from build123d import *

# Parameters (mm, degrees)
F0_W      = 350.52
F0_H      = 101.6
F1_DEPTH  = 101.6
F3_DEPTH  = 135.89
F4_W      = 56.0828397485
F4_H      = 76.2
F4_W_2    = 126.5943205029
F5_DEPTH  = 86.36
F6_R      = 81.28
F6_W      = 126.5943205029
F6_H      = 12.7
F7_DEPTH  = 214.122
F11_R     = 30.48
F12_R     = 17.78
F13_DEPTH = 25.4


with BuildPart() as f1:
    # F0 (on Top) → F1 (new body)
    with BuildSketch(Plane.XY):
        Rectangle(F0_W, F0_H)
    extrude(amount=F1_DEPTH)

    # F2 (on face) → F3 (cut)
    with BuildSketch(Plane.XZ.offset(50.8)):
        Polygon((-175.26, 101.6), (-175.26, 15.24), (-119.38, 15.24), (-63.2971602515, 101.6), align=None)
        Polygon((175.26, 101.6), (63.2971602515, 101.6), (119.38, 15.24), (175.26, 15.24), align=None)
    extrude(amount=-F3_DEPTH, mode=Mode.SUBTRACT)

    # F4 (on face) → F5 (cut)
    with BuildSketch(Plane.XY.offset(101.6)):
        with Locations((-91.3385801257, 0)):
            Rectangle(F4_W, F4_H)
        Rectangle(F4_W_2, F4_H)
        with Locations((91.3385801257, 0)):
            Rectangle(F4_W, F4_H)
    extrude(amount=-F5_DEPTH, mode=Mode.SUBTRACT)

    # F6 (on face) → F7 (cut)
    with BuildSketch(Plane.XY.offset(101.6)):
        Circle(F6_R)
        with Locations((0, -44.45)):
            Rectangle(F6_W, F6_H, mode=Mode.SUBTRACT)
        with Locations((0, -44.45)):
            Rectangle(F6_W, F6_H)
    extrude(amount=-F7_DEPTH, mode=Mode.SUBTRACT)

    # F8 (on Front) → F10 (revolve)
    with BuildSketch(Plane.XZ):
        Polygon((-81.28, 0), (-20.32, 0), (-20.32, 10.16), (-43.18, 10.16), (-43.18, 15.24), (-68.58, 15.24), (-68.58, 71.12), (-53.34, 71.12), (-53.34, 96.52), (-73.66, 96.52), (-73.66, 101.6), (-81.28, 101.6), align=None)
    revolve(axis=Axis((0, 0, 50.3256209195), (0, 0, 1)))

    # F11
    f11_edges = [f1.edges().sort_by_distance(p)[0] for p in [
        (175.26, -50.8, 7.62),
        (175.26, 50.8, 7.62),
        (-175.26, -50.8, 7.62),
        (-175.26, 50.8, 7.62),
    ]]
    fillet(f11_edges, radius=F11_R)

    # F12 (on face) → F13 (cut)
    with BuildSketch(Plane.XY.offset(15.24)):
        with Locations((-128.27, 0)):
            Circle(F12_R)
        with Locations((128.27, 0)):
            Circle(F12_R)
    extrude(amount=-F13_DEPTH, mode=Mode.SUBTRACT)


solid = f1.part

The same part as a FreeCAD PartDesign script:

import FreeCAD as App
import Part
import Sketcher
from FreeCAD import Vector
Q = App.Units.Quantity


def edges_at(feature, points):
    """Names of the edges that pass closest to the given points."""
    edges = feature.Shape.Edges
    near = lambda p: min(range(len(edges)), key=lambda i: edges[i].distToShape(Part.Vertex(*p))[0])
    return sorted({f"Edge{near(p) + 1}" for p in points})

doc = App.newDocument("Part")
body = doc.addObject("PartDesign::Body", "Body")
body.AllowCompound = True

sketch1 = body.newObject("Sketcher::SketchObject", "Sketch")
sketch1.AttachmentSupport = (doc.getObject("XY_Plane"), [""])
sketch1.MapMode = "FlatFace"
sketch1.addGeometry(Part.LineSegment(Vector(-175.26, 50.8, 0), Vector(-175.26, -50.8, 0)), False)
sketch1.addGeometry(Part.LineSegment(Vector(-175.26, -50.8, 0), Vector(175.26, -50.8, 0)), False)
sketch1.addGeometry(Part.LineSegment(Vector(175.26, -50.8, 0), Vector(175.26, 50.8, 0)), False)
sketch1.addGeometry(Part.LineSegment(Vector(175.26, 50.8, 0), Vector(-175.26, 50.8, 0)), False)
sketch1.addConstraint(Sketcher.Constraint("Coincident", 0, 2, 1, 1))
sketch1.addConstraint(Sketcher.Constraint("Coincident", 1, 2, 2, 1))
sketch1.addConstraint(Sketcher.Constraint("Coincident", 2, 2, 3, 1))
sketch1.addConstraint(Sketcher.Constraint("Coincident", 3, 2, 0, 1))
sketch1.addConstraint(Sketcher.Constraint("Vertical", 0))
sketch1.addConstraint(Sketcher.Constraint("Horizontal", 1))
sketch1.addConstraint(Sketcher.Constraint("Vertical", 2))
sketch1.addConstraint(Sketcher.Constraint("Horizontal", 3))
sketch1.addConstraint(Sketcher.Constraint("Symmetric", 0, 2, 2, 2, -1, 1))
sketch1.addConstraint(Sketcher.Constraint("DistanceY", 0, 2, 0, 1, Q("4 in")))
sketch1.addConstraint(Sketcher.Constraint("DistanceX", 1, 1, 1, 2, Q("13.8 in")))
pad1 = body.newObject("PartDesign::Pad", "Pad")
pad1.Profile = sketch1
pad1.Length = Q("4 in")

sketch2 = body.newObject("Sketcher::SketchObject", "Sketch001")
sketch2.AttachmentSupport = (doc.getObject("XZ_Plane"), [""])
sketch2.MapMode = "FlatFace"
sketch2.AttachmentOffset = App.Placement(Vector(0, 0, 2 * 25.4), App.Rotation())
sketch2.addGeometry(Part.LineSegment(Vector(-175.26, 101.6, 0), Vector(-175.26, 15.24, 0)), False)
sketch2.addGeometry(Part.LineSegment(Vector(-175.26, 15.24, 0), Vector(-119.38, 15.24, 0)), False)
sketch2.addGeometry(Part.LineSegment(Vector(-119.38, 15.24, 0), Vector(-63.29716, 101.6, 0)), False)
sketch2.addGeometry(Part.LineSegment(Vector(-63.29716, 101.6, 0), Vector(-175.26, 101.6, 0)), False)
sketch2.addGeometry(Part.LineSegment(Vector(175.26, 101.6, 0), Vector(63.29716, 101.6, 0)), False)
sketch2.addGeometry(Part.LineSegment(Vector(63.29716, 101.6, 0), Vector(119.38, 15.24, 0)), False)
sketch2.addGeometry(Part.LineSegment(Vector(119.38, 15.24, 0), Vector(175.26, 15.24, 0)), False)
sketch2.addGeometry(Part.LineSegment(Vector(175.26, 15.24, 0), Vector(175.26, 101.6, 0)), False)
sketch2.addConstraint(Sketcher.Constraint("Coincident", 0, 2, 1, 1))
sketch2.addConstraint(Sketcher.Constraint("Coincident", 1, 2, 2, 1))
sketch2.addConstraint(Sketcher.Constraint("Coincident", 2, 2, 3, 1))
sketch2.addConstraint(Sketcher.Constraint("Coincident", 3, 2, 0, 1))
sketch2.addConstraint(Sketcher.Constraint("Coincident", 4, 2, 5, 1))
sketch2.addConstraint(Sketcher.Constraint("Coincident", 5, 2, 6, 1))
sketch2.addConstraint(Sketcher.Constraint("Coincident", 6, 2, 7, 1))
sketch2.addConstraint(Sketcher.Constraint("Coincident", 7, 2, 4, 1))
sketch2.addConstraint(Sketcher.Constraint("Vertical", 0))
sketch2.addConstraint(Sketcher.Constraint("Horizontal", 1))
sketch2.addConstraint(Sketcher.Constraint("Horizontal", 3))
sketch2.addConstraint(Sketcher.Constraint("Horizontal", 4))
sketch2.addConstraint(Sketcher.Constraint("Horizontal", 6))
sketch2.addConstraint(Sketcher.Constraint("Vertical", 7))
sketch2.addConstraint(Sketcher.Constraint("Symmetric", 2, 2, 4, 2, -2))
sketch2.addConstraint(Sketcher.Constraint("Symmetric", 1, 2, 5, 2, -2))
sketch2.addConstraint(Sketcher.Constraint("Equal", 3, 4))
sketch2.addConstraint(Sketcher.Constraint("DistanceX", 1, 1, 1, 2, Q("2.2 in")))
sketch2.addConstraint(Sketcher.Constraint("DistanceY", 0, 2, 0, 1, Q("3.4 in")))
sketch2.addConstraint(Sketcher.Constraint("DistanceY", -1, 1, 2, 2, Q("4 in")))
sketch2.addConstraint(Sketcher.Constraint("Angle", 2, Q("57 deg")))
sketch2.addConstraint(Sketcher.Constraint("DistanceX", 0, 2, -1, 1, Q("6.9 in")))
pocket1 = body.newObject("PartDesign::Pocket", "Pocket")
pocket1.Profile = sketch2
pocket1.Length = Q("5.35 in")

sketch3 = body.newObject("Sketcher::SketchObject", "Sketch002")
sketch3.AttachmentSupport = (doc.getObject("XY_Plane"), [""])
sketch3.MapMode = "FlatFace"
sketch3.AttachmentOffset = App.Placement(Vector(0, 0, 4 * 25.4), App.Rotation())
sketch3.addGeometry(Part.LineSegment(Vector(-119.38, 38.1, 0), Vector(-119.38, -38.1, 0)), False)
sketch3.addGeometry(Part.LineSegment(Vector(-119.38, -38.1, 0), Vector(119.38, -38.1, 0)), False)
sketch3.addGeometry(Part.LineSegment(Vector(119.38, -38.1, 0), Vector(119.38, 38.1, 0)), False)
sketch3.addGeometry(Part.LineSegment(Vector(119.38, 38.1, 0), Vector(-119.38, 38.1, 0)), False)
sketch3.addConstraint(Sketcher.Constraint("Coincident", 0, 2, 1, 1))
sketch3.addConstraint(Sketcher.Constraint("Coincident", 1, 2, 2, 1))
sketch3.addConstraint(Sketcher.Constraint("Coincident", 2, 2, 3, 1))
sketch3.addConstraint(Sketcher.Constraint("Coincident", 3, 2, 0, 1))
sketch3.addConstraint(Sketcher.Constraint("Vertical", 0))
sketch3.addConstraint(Sketcher.Constraint("Horizontal", 1))
sketch3.addConstraint(Sketcher.Constraint("Vertical", 2))
sketch3.addConstraint(Sketcher.Constraint("Horizontal", 3))
sketch3.addConstraint(Sketcher.Constraint("Symmetric", 0, 2, 2, 2, -1, 1))
sketch3.addConstraint(Sketcher.Constraint("DistanceY", 0, 2, 0, 1, Q("3 in")))
sketch3.addConstraint(Sketcher.Constraint("DistanceX", 1, 1, 1, 2, Q("9.4 in")))
pocket2 = body.newObject("PartDesign::Pocket", "Pocket001")
pocket2.Profile = sketch3
pocket2.Length = Q("3.4 in")

sketch4 = body.newObject("Sketcher::SketchObject", "Sketch003")
sketch4.AttachmentSupport = (doc.getObject("XY_Plane"), [""])
sketch4.MapMode = "FlatFace"
sketch4.AttachmentOffset = App.Placement(Vector(0, 0, 4 * 25.4), App.Rotation())
sketch4.addGeometry(Part.Circle(Vector(0, 0, 0), Vector(0, 0, 1), 81.28), False)
sketch4.addConstraint(Sketcher.Constraint("Coincident", 0, 3, -1, 1))
sketch4.addConstraint(Sketcher.Constraint("Diameter", 0, Q("6.4 in")))
pocket3 = body.newObject("PartDesign::Pocket", "Pocket002")
pocket3.Profile = sketch4
pocket3.Length = Q("8.43 in")

sketch5 = body.newObject("Sketcher::SketchObject", "Sketch004")
sketch5.AttachmentSupport = (doc.getObject("XZ_Plane"), [""])
sketch5.MapMode = "FlatFace"
sketch5.addGeometry(Part.LineSegment(Vector(-81.28, 0, 0), Vector(-20.32, 0, 0)), False)
sketch5.addGeometry(Part.LineSegment(Vector(-20.32, 0, 0), Vector(-20.32, 10.16, 0)), False)
sketch5.addGeometry(Part.LineSegment(Vector(-20.32, 10.16, 0), Vector(-43.18, 10.16, 0)), False)
sketch5.addGeometry(Part.LineSegment(Vector(-43.18, 10.16, 0), Vector(-43.18, 15.24, 0)), False)
sketch5.addGeometry(Part.LineSegment(Vector(-43.18, 15.24, 0), Vector(-68.58, 15.24, 0)), False)
sketch5.addGeometry(Part.LineSegment(Vector(-68.58, 15.24, 0), Vector(-68.58, 71.12, 0)), False)
sketch5.addGeometry(Part.LineSegment(Vector(-68.58, 71.12, 0), Vector(-53.34, 71.12, 0)), False)
sketch5.addGeometry(Part.LineSegment(Vector(-53.34, 71.12, 0), Vector(-53.34, 96.52, 0)), False)
sketch5.addGeometry(Part.LineSegment(Vector(-53.34, 96.52, 0), Vector(-73.66, 96.52, 0)), False)
sketch5.addGeometry(Part.LineSegment(Vector(-73.66, 96.52, 0), Vector(-73.66, 101.6, 0)), False)
sketch5.addGeometry(Part.LineSegment(Vector(-73.66, 101.6, 0), Vector(-81.28, 101.6, 0)), False)
sketch5.addGeometry(Part.LineSegment(Vector(-81.28, 101.6, 0), Vector(-81.28, 0, 0)), False)
sketch5.addConstraint(Sketcher.Constraint("Coincident", 0, 2, 1, 1))
sketch5.addConstraint(Sketcher.Constraint("Coincident", 1, 2, 2, 1))
sketch5.addConstraint(Sketcher.Constraint("Coincident", 2, 2, 3, 1))
sketch5.addConstraint(Sketcher.Constraint("Coincident", 3, 2, 4, 1))
sketch5.addConstraint(Sketcher.Constraint("Coincident", 4, 2, 5, 1))
sketch5.addConstraint(Sketcher.Constraint("Coincident", 5, 2, 6, 1))
sketch5.addConstraint(Sketcher.Constraint("Coincident", 6, 2, 7, 1))
sketch5.addConstraint(Sketcher.Constraint("Coincident", 7, 2, 8, 1))
sketch5.addConstraint(Sketcher.Constraint("Coincident", 8, 2, 9, 1))
sketch5.addConstraint(Sketcher.Constraint("Coincident", 9, 2, 10, 1))
sketch5.addConstraint(Sketcher.Constraint("Coincident", 10, 2, 11, 1))
sketch5.addConstraint(Sketcher.Constraint("Coincident", 11, 2, 0, 1))
sketch5.addConstraint(Sketcher.Constraint("Horizontal", 0))
sketch5.addConstraint(Sketcher.Constraint("Vertical", 1))
sketch5.addConstraint(Sketcher.Constraint("Horizontal", 2))
sketch5.addConstraint(Sketcher.Constraint("Vertical", 3))
sketch5.addConstraint(Sketcher.Constraint("Horizontal", 4))
sketch5.addConstraint(Sketcher.Constraint("Vertical", 5))
sketch5.addConstraint(Sketcher.Constraint("Horizontal", 6))
sketch5.addConstraint(Sketcher.Constraint("Vertical", 7))
sketch5.addConstraint(Sketcher.Constraint("Horizontal", 8))
sketch5.addConstraint(Sketcher.Constraint("Vertical", 9))
sketch5.addConstraint(Sketcher.Constraint("Horizontal", 10))
sketch5.addConstraint(Sketcher.Constraint("Vertical", 11))
sketch5.addConstraint(Sketcher.Constraint("PointOnObject", 0, 2, -1))
sketch5.addConstraint(Sketcher.Constraint("Equal", 4, 7))
sketch5.addConstraint(Sketcher.Constraint("Equal", 3, 9))
sketch5.addConstraint(Sketcher.Constraint("DistanceX", 4, 2, 4, 1, Q("1 in")))
sketch5.addConstraint(Sketcher.Constraint("DistanceY", 11, 2, 11, 1, Q("4 in")))
sketch5.addConstraint(Sketcher.Constraint("DistanceX", 0, 1, 0, 2, Q("2.4 in")))
sketch5.addConstraint(Sketcher.Constraint("DistanceX", 2, 2, 2, 1, Q("0.9 in")))
sketch5.addConstraint(Sketcher.Constraint("DistanceX", 6, 1, 6, 2, Q("0.6 in")))
sketch5.addConstraint(Sketcher.Constraint("DistanceX", 8, 2, 8, 1, Q("0.8 in")))
sketch5.addConstraint(Sketcher.Constraint("DistanceY", 1, 1, 1, 2, Q("0.4 in")))
sketch5.addConstraint(Sketcher.Constraint("DistanceY", 3, 1, 3, 2, Q("0.2 in")))
sketch5.addConstraint(Sketcher.Constraint("DistanceX", 0, 2, -1, 1, Q("0.8 in")))
revolution = body.newObject("PartDesign::Revolution", "Revolution")
revolution.Profile = sketch5
revolution.ReferenceAxis = (sketch5, ["V_Axis"])
revolution.Angle = 360
doc.recompute()

fillet = body.newObject("PartDesign::Fillet", "Fillet")
fillet.Base = (revolution, edges_at(revolution, [
    (175.26, -50.8, 7.62),
    (175.26, 50.8, 7.62),
    (-175.26, -50.8, 7.62),
    (-175.26, 50.8, 7.62),
]))
fillet.Radius = Q("1.2 in")

sketch6 = body.newObject("Sketcher::SketchObject", "Sketch005")
sketch6.AttachmentSupport = (doc.getObject("XY_Plane"), [""])
sketch6.MapMode = "FlatFace"
sketch6.AttachmentOffset = App.Placement(Vector(0, 0, 0.6 * 25.4), App.Rotation())
sketch6.addGeometry(Part.Circle(Vector(-128.27, 0, 0), Vector(0, 0, 1), 17.78), False)
sketch6.addGeometry(Part.Circle(Vector(128.27, 0, 0), Vector(0, 0, 1), 17.78), False)
sketch6.addConstraint(Sketcher.Constraint("Equal", 0, 1))
sketch6.addConstraint(Sketcher.Constraint("Symmetric", 0, 3, 1, 3, -1, 1))
sketch6.addConstraint(Sketcher.Constraint("PointOnObject", 0, 3, -1))
sketch6.addConstraint(Sketcher.Constraint("Diameter", 0, Q("1.4 in")))
sketch6.addConstraint(Sketcher.Constraint("DistanceX", 0, 3, 1, 3, Q("10.1 in")))
pocket4 = body.newObject("PartDesign::Pocket", "Pocket003")
pocket4.Profile = sketch6
pocket4.Length = Q("1 in")

doc.recompute()
